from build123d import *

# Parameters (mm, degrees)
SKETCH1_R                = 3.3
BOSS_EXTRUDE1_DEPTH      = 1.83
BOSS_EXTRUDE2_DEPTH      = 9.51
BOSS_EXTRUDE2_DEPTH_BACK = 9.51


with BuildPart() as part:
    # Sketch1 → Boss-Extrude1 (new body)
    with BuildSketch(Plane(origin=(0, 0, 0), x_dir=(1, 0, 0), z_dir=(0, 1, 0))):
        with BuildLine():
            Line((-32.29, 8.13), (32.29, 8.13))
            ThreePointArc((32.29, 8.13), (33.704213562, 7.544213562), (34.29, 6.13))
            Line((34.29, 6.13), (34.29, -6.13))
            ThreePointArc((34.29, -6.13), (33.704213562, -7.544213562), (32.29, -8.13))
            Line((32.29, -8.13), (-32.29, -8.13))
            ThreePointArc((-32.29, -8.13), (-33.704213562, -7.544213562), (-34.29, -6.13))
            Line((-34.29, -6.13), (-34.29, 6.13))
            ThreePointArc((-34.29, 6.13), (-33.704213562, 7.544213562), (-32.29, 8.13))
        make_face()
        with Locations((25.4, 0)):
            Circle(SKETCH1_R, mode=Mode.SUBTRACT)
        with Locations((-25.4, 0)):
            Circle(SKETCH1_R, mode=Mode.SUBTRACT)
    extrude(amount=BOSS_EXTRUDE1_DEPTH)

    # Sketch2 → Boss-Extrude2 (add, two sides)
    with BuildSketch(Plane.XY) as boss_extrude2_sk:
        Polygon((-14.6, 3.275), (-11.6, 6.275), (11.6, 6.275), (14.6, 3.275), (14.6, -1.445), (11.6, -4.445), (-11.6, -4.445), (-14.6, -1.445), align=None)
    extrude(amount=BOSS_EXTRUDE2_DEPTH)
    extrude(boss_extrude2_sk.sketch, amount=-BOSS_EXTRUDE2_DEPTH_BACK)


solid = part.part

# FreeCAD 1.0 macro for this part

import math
import FreeCAD as App
import Part
import Sketcher

doc = App.newDocument("Part")
params = doc.addObject("Spreadsheet::Sheet", "Params")
for row, (alias, value) in enumerate([
    ("sketch1_radius", "2 mm"),
    ("sketch1_diameter", "6.6 mm"),
    ("sketch1_width", "64.58 mm"),
    ("sketch1_height", "12.26 mm"),
    ("pad1_length", "1.83 mm"),
    ("sketch2_width", "23.2 mm"),
    ("sketch2_height", "4.72 mm"),
    ("pad2_length", "9.51 mm"),
    ("pad2_length2", "9.51 mm"),
], start=1):
    params.set(f"A{row}", alias)
    params.set(f"B{row}", "=" + value)
    params.setAlias(f"B{row}", alias)

body = doc.addObject("PartDesign::Body", "Body")

sketch1 = body.newObject("Sketcher::SketchObject", "Sketch")
sketch1.AttachmentSupport = (doc.getObject("XZ_Plane"), [""])
sketch1.MapMode = "FlatFace"
sketch1.addGeometry([
    Part.LineSegment(App.Vector(32.3, -8.1, 0), App.Vector(-32.3, -8.1, 0)),
    Part.ArcOfCircle(Part.Circle(App.Vector(-32.3, -6.1, 0), App.Vector(0, 0, 1), 2), math.radians(-180), math.radians(-90)),
    Part.LineSegment(App.Vector(-34.3, -6.1, 0), App.Vector(-34.3, 6.1, 0)),
    Part.ArcOfCircle(Part.Circle(App.Vector(-32.3, 6.1, 0), App.Vector(0, 0, 1), 2), math.radians(90), math.radians(180)),
    Part.LineSegment(App.Vector(-32.3, 8.1, 0), App.Vector(32.3, 8.1, 0)),
    Part.ArcOfCircle(Part.Circle(App.Vector(32.3, 6.1, 0), App.Vector(0, 0, 1), 2), math.radians(0), math.radians(90)),
    Part.LineSegment(App.Vector(34.3, 6.1, 0), App.Vector(34.3, -6.1, 0)),
    Part.ArcOfCircle(Part.Circle(App.Vector(32.3, -6.1, 0), App.Vector(0, 0, 1), 2), math.radians(-90), math.radians(0)),
    Part.Circle(App.Vector(25.4, 0, 0), App.Vector(0, 0, 1), 3.3),
    Part.Circle(App.Vector(-25.4, 0, 0), App.Vector(0, 0, 1), 3.3),
], False)
sketch1.addConstraint([
    Sketcher.Constraint("Tangent", 0, 2, 1, 2),
    Sketcher.Constraint("Tangent", 1, 1, 2, 1),
    Sketcher.Constraint("Tangent", 2, 2, 3, 2),
    Sketcher.Constraint("Tangent", 3, 1, 4, 1),
    Sketcher.Constraint("Tangent", 4, 2, 5, 2),
    Sketcher.Constraint("Tangent", 5, 1, 6, 1),
    Sketcher.Constraint("Tangent", 6, 2, 7, 2),
    Sketcher.Constraint("Tangent", 7, 1, 0, 1),
    Sketcher.Constraint("Horizontal", 0),
    Sketcher.Constraint("Vertical", 2),
    Sketcher.Constraint("Horizontal", 4),
    Sketcher.Constraint("Vertical", 6),
    Sketcher.Constraint("Equal", 1, 3),
    Sketcher.Constraint("Equal", 3, 5),
    Sketcher.Constraint("Equal", 5, 7),
    Sketcher.Constraint("Equal", 8, 9),
    Sketcher.Constraint("Symmetric", 1, 3, 5, 3, -1, 1),
    Sketcher.Constraint("Symmetric", 8, 3, 9, 3, -1, 1),
    Sketcher.Constraint("PointOnObject", 8, 3, -1),
    Sketcher.Constraint("Radius", 1, 2.0),
    Sketcher.Constraint("Diameter", 8, 6.6),
    Sketcher.Constraint("DistanceX", 0, 2, 0, 1, 64.58),
    Sketcher.Constraint("DistanceY", 2, 1, 2, 2, 12.26),
    Sketcher.Constraint("DistanceX", -1, 1, 8, 3, 25.4),
])
sketch1.setExpression("Constraints[19]", "Params.sketch1_radius")
sketch1.setExpression("Constraints[20]", "Params.sketch1_diameter")
sketch1.setExpression("Constraints[21]", "Params.sketch1_width")
sketch1.setExpression("Constraints[22]", "Params.sketch1_height")
pad1 = body.newObject("PartDesign::Pad", "Pad")
pad1.Profile = sketch1
pad1.setExpression("Length", "Params.pad1_length")
pad1.Reversed = True

sketch2 = body.newObject("Sketcher::SketchObject", "Sketch001")
sketch2.AttachmentSupport = (doc.getObject("XY_Plane"), [""])
sketch2.MapMode = "FlatFace"
sketch2.addGeometry([
    Part.LineSegment(App.Vector(-11.6, 6.3, 0), App.Vector(-14.6, 3.3, 0)),
    Part.LineSegment(App.Vector(-14.6, 3.3, 0), App.Vector(-14.6, -1.4, 0)),
    Part.LineSegment(App.Vector(-14.6, -1.4, 0), App.Vector(-11.6, -4.4, 0)),
    Part.LineSegment(App.Vector(-11.6, -4.4, 0), App.Vector(11.6, -4.4, 0)),
    Part.LineSegment(App.Vector(11.6, -4.4, 0), App.Vector(14.6, -1.4, 0)),
    Part.LineSegment(App.Vector(14.6, -1.4, 0), App.Vector(14.6, 3.3, 0)),
    Part.LineSegment(App.Vector(14.6, 3.3, 0), App.Vector(11.6, 6.3, 0)),
    Part.LineSegment(App.Vector(11.6, 6.3, 0), App.Vector(-11.6, 6.3, 0)),
], False)
sketch2.addConstraint([
    Sketcher.Constraint("Coincident", 0, 2, 1, 1),
    Sketcher.Constraint("Coincident", 1, 2, 2, 1),
    Sketcher.Constraint("Coincident", 2, 2, 3, 1),
    Sketcher.Constraint("Coincident", 3, 2, 4, 1),
    Sketcher.Constraint("Coincident", 4, 2, 5, 1),
    Sketcher.Constraint("Coincident", 5, 2, 6, 1),
    Sketcher.Constraint("Coincident", 6, 2, 7, 1),
    Sketcher.Constraint("Coincident", 7, 2, 0, 1),
    Sketcher.Constraint("Vertical", 1),
    Sketcher.Constraint("Horizontal", 3),
    Sketcher.Constraint("Vertical", 5),
    Sketcher.Constraint("Horizontal", 7),
    Sketcher.Constraint("Symmetric", 1, 2, 4, 2, -2),
    Sketcher.Constraint("Perpendicular", 0, 2),
    Sketcher.Constraint("Perpendicular", 2, 4),
    Sketcher.Constraint("Perpendicular", 4, 6),
    Sketcher.Constraint("Horizontal", 0, 2, 5, 2),
    Sketcher.Constraint("Vertical", 3, 2, 6, 2),
    Sketcher.Constraint("Vertical", 2, 2, 7, 2),
    Sketcher.Constraint("DistanceX", 3, 1, 3, 2, 23.2),
    Sketcher.Constraint("DistanceX", 1, 2, 2, 2, 3.0),
    Sketcher.Constraint("DistanceY", 1, 2, 1, 1, 4.72),
    Sketcher.Constraint("DistanceY", -1, 1, 0, 2, 3.275),
])
sketch2.setExpression("Constraints[19]", "Params.sketch2_width")
sketch2.setExpression("Constraints[21]", "Params.sketch2_height")
pad2 = body.newObject("PartDesign::Pad", "Pad001")
pad2.Profile = sketch2
pad2.Type = "TwoLengths"
pad2.setExpression("Length", "Params.pad2_length")
pad2.setExpression("Length2", "Params.pad2_length2")

doc.recompute()
